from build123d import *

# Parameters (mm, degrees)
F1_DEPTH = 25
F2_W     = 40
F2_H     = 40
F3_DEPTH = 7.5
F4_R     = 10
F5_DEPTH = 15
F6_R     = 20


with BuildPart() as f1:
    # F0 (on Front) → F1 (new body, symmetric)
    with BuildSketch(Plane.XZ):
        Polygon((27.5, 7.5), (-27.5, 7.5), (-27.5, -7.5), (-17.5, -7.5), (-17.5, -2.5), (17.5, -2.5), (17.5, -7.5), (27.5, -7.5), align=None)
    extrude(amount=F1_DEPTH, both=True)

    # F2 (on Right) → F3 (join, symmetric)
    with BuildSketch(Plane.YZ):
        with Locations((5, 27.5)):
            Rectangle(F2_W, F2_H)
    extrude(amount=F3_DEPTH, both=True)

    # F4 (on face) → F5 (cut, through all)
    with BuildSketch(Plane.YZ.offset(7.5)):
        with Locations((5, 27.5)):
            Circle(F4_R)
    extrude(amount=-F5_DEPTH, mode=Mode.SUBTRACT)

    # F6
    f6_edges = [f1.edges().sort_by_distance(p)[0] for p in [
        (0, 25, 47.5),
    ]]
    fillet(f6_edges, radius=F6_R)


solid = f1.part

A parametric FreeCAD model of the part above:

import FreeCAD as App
import Part
import Sketcher
from FreeCAD import Vector


def edges_at(feature, points):
    """Names of the edges that pass closest to the given points."""
    edges = feature.Shape.Edges
    near = lambda p: min(range(len(edges)), key=lambda i: edges[i].distToShape(Part.Vertex(*p))[0])
    return sorted({f"Edge{near(p) + 1}" for p in points})

doc = App.newDocument("Part")
body = doc.addObject("PartDesign::Body", "Body")

# Sketch on XZ plane
sketch1 = body.newObject("Sketcher::SketchObject", "Sketch")
sketch1.AttachmentSupport = (doc.getObject("XZ_Plane"), [""])
sketch1.MapMode = "FlatFace"
sketch1.addGeometry([
    Part.LineSegment(Vector(27.5, 7.5, 0), Vector(-27.5, 7.5, 0)),  # 0
    Part.LineSegment(Vector(-27.5, 7.5, 0), Vector(-27.5, -7.5, 0)),  # 1
    Part.LineSegment(Vector(-27.5, -7.5, 0), Vector(-17.5, -7.5, 0)),  # 2
    Part.LineSegment(Vector(-17.5, -7.5, 0), Vector(-17.5, -2.5, 0)),  # 3
    Part.LineSegment(Vector(-17.5, -2.5, 0), Vector(17.5, -2.5, 0)),  # 4
    Part.LineSegment(Vector(17.5, -2.5, 0), Vector(17.5, -7.5, 0)),  # 5
    Part.LineSegment(Vector(17.5, -7.5, 0), Vector(27.5, -7.5, 0)),  # 6
    Part.LineSegment(Vector(27.5, -7.5, 0), Vector(27.5, 7.5, 0)),  # 7
], False)
sketch1.addConstraint([
    Sketcher.Constraint("Coincident", 0, 2, 1, 1),
    Sketcher.Constraint("Coincident", 1, 2, 2, 1),
    Sketcher.Constraint("Coincident", 2, 2, 3, 1),
    Sketcher.Constraint("Coincident", 3, 2, 4, 1),
    Sketcher.Constraint("Coincident", 4, 2, 5, 1),
    Sketcher.Constraint("Coincident", 5, 2, 6, 1),
    Sketcher.Constraint("Coincident", 6, 2, 7, 1),
    Sketcher.Constraint("Coincident", 7, 2, 0, 1),
    Sketcher.Constraint("Horizontal", 0),
    Sketcher.Constraint("Vertical", 1),
    Sketcher.Constraint("Horizontal", 2),
    Sketcher.Constraint("Vertical", 3),
    Sketcher.Constraint("Horizontal", 4),
    Sketcher.Constraint("Vertical", 5),
    Sketcher.Constraint("Horizontal", 6),
    Sketcher.Constraint("Vertical", 7),
    Sketcher.Constraint("Symmetric", 0, 2, 6, 2, -1, 1),
    Sketcher.Constraint("Symmetric", 2, 2, 5, 2, -2),
    Sketcher.Constraint("DistanceX", 0, 2, 0, 1, 55.0),
    Sketcher.Constraint("DistanceX", 2, 1, 2, 2, 10.0),
    Sketcher.Constraint("DistanceY", 1, 2, 1, 1, 15.0),
    Sketcher.Constraint("DistanceY", 3, 1, 3, 2, 5.0),
])
pad1 = body.newObject("PartDesign::Pad", "Pad")
pad1.Profile = sketch1
pad1.Length = 50
pad1.Midplane = True

# Sketch on YZ plane
sketch2 = body.newObject("Sketcher::SketchObject", "Sketch001")
sketch2.AttachmentSupport = (doc.getObject("YZ_Plane"), [""])
sketch2.MapMode = "FlatFace"
sketch2.addGeometry([
    Part.LineSegment(Vector(-15, 47.5, 0), Vector(-15, 7.5, 0)),
    Part.LineSegment(Vector(-15, 7.5, 0), Vector(25, 7.5, 0)),
    Part.LineSegment(Vector(25, 7.5, 0), Vector(25, 47.5, 0)),
    Part.LineSegment(Vector(25, 47.5, 0), Vector(-15, 47.5, 0)),
], False)
sketch2.addConstraint([
    Sketcher.Constraint("Coincident", 0, 2, 1, 1),
    Sketcher.Constraint("Coincident", 1, 2, 2, 1),
    Sketcher.Constraint("Coincident", 2, 2, 3, 1),
    Sketcher.Constraint("Coincident", 3, 2, 0, 1),
    Sketcher.Constraint("Vertical", 0),
    Sketcher.Constraint("Horizontal", 1),
    Sketcher.Constraint("Vertical", 2),
    Sketcher.Constraint("Horizontal", 3),
    Sketcher.Constraint("Equal", 3, 0),
    Sketcher.Constraint("DistanceX", 1, 1, 1, 2, 40.0),
    Sketcher.Constraint("DistanceX", 0, 2, -1, 1, 15.0),
    Sketcher.Constraint("DistanceY", -1, 1, 0, 2, 7.5),
])
pad2 = body.newObject("PartDesign::Pad", "Pad001")
pad2.Profile = sketch2
pad2.Length = 15
pad2.Midplane = True

# Sketch on YZ plane
sketch3 = body.newObject("Sketcher::SketchObject", "Sketch002")
sketch3.AttachmentSupport = (doc.getObject("YZ_Plane"), [""])
sketch3.MapMode = "FlatFace"
sketch3.AttachmentOffset = App.Placement(Vector(0, 0, 7.5), App.Rotation())
sketch3.addGeometry(Part.Circle(Vector(5, 27.5, 0), Vector(0, 0, 1), 10), False)
sketch3.addConstraint([
    Sketcher.Constraint("Diameter", 0, 20.0),
    Sketcher.Constraint("DistanceX", -1, 1, 0, 3, 5.0),
    Sketcher.Constraint("DistanceY", -1, 1, 0, 3, 27.5),
])
pocket1 = body.newObject("PartDesign::Pocket", "Pocket")
pocket1.Profile = sketch3
pocket1.Type = "ThroughAll"
doc.recompute()

fillet = body.newObject("PartDesign::Fillet", "Fillet")
fillet.Base = (pocket1, edges_at(pocket1, [(0, 25, 47.5)]))
fillet.Radius = 20

doc.recompute()
